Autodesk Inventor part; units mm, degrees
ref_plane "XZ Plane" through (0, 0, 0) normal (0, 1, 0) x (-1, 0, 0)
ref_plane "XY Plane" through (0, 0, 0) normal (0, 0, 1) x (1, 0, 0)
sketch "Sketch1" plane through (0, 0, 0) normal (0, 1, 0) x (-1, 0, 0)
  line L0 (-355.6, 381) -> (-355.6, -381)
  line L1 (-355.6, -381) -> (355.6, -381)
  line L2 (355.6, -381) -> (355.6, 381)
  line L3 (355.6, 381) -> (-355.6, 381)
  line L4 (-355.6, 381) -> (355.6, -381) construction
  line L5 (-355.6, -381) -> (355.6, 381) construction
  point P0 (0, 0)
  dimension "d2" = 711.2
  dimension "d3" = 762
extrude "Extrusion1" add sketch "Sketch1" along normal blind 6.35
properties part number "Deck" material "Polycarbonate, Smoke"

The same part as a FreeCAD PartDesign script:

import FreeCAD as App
import Part
import Sketcher
from FreeCAD import Vector
Q = App.Units.Quantity

doc = App.newDocument("Part")
body = doc.addObject("PartDesign::Body", "Body")

sketch1 = doc.addObject("Sketcher::SketchObject", "Sketch")
body.addObject(sketch1)
sketch1.AttachmentSupport = (doc.XZ_Plane, [""])
sketch1.MapMode = "FlatFace"
sketch1.addGeometry(Part.LineSegment(Vector(-356, 381, 0), Vector(356, 381, 0)), False)
sketch1.addGeometry(Part.LineSegment(Vector(356, 381, 0), Vector(356, -381, 0)), False)
sketch1.addGeometry(Part.LineSegment(Vector(356, -381, 0), Vector(-356, -381, 0)), False)
sketch1.addGeometry(Part.LineSegment(Vector(-356, -381, 0), Vector(-356, 381, 0)), False)
sketch1.addConstraint(Sketcher.Constraint("Coincident", 0, 2, 1, 1))
sketch1.addConstraint(Sketcher.Constraint("Coincident", 1, 2, 2, 1))
sketch1.addConstraint(Sketcher.Constraint("Coincident", 2, 2, 3, 1))
sketch1.addConstraint(Sketcher.Constraint("Coincident", 3, 2, 0, 1))
sketch1.addConstraint(Sketcher.Constraint("Horizontal", 0))
sketch1.addConstraint(Sketcher.Constraint("Vertical", 1))
sketch1.addConstraint(Sketcher.Constraint("Horizontal", 2))
sketch1.addConstraint(Sketcher.Constraint("Vertical", 3))
sketch1.addConstraint(Sketcher.Constraint("Symmetric", 0, 2, 2, 2, -1, 1))
sketch1.addConstraint(Sketcher.Constraint("DistanceX", 0, 1, 0, 2, Q("28 in")))
sketch1.addConstraint(Sketcher.Constraint("DistanceY", 1, 2, 1, 1, Q("30 in")))
pad1 = doc.addObject("PartDesign::Pad", "Pad")
body.addObject(pad1)
pad1.Profile = sketch1
pad1.Length = Q("0.25 in")
pad1.Reversed = True

doc.recompute()
